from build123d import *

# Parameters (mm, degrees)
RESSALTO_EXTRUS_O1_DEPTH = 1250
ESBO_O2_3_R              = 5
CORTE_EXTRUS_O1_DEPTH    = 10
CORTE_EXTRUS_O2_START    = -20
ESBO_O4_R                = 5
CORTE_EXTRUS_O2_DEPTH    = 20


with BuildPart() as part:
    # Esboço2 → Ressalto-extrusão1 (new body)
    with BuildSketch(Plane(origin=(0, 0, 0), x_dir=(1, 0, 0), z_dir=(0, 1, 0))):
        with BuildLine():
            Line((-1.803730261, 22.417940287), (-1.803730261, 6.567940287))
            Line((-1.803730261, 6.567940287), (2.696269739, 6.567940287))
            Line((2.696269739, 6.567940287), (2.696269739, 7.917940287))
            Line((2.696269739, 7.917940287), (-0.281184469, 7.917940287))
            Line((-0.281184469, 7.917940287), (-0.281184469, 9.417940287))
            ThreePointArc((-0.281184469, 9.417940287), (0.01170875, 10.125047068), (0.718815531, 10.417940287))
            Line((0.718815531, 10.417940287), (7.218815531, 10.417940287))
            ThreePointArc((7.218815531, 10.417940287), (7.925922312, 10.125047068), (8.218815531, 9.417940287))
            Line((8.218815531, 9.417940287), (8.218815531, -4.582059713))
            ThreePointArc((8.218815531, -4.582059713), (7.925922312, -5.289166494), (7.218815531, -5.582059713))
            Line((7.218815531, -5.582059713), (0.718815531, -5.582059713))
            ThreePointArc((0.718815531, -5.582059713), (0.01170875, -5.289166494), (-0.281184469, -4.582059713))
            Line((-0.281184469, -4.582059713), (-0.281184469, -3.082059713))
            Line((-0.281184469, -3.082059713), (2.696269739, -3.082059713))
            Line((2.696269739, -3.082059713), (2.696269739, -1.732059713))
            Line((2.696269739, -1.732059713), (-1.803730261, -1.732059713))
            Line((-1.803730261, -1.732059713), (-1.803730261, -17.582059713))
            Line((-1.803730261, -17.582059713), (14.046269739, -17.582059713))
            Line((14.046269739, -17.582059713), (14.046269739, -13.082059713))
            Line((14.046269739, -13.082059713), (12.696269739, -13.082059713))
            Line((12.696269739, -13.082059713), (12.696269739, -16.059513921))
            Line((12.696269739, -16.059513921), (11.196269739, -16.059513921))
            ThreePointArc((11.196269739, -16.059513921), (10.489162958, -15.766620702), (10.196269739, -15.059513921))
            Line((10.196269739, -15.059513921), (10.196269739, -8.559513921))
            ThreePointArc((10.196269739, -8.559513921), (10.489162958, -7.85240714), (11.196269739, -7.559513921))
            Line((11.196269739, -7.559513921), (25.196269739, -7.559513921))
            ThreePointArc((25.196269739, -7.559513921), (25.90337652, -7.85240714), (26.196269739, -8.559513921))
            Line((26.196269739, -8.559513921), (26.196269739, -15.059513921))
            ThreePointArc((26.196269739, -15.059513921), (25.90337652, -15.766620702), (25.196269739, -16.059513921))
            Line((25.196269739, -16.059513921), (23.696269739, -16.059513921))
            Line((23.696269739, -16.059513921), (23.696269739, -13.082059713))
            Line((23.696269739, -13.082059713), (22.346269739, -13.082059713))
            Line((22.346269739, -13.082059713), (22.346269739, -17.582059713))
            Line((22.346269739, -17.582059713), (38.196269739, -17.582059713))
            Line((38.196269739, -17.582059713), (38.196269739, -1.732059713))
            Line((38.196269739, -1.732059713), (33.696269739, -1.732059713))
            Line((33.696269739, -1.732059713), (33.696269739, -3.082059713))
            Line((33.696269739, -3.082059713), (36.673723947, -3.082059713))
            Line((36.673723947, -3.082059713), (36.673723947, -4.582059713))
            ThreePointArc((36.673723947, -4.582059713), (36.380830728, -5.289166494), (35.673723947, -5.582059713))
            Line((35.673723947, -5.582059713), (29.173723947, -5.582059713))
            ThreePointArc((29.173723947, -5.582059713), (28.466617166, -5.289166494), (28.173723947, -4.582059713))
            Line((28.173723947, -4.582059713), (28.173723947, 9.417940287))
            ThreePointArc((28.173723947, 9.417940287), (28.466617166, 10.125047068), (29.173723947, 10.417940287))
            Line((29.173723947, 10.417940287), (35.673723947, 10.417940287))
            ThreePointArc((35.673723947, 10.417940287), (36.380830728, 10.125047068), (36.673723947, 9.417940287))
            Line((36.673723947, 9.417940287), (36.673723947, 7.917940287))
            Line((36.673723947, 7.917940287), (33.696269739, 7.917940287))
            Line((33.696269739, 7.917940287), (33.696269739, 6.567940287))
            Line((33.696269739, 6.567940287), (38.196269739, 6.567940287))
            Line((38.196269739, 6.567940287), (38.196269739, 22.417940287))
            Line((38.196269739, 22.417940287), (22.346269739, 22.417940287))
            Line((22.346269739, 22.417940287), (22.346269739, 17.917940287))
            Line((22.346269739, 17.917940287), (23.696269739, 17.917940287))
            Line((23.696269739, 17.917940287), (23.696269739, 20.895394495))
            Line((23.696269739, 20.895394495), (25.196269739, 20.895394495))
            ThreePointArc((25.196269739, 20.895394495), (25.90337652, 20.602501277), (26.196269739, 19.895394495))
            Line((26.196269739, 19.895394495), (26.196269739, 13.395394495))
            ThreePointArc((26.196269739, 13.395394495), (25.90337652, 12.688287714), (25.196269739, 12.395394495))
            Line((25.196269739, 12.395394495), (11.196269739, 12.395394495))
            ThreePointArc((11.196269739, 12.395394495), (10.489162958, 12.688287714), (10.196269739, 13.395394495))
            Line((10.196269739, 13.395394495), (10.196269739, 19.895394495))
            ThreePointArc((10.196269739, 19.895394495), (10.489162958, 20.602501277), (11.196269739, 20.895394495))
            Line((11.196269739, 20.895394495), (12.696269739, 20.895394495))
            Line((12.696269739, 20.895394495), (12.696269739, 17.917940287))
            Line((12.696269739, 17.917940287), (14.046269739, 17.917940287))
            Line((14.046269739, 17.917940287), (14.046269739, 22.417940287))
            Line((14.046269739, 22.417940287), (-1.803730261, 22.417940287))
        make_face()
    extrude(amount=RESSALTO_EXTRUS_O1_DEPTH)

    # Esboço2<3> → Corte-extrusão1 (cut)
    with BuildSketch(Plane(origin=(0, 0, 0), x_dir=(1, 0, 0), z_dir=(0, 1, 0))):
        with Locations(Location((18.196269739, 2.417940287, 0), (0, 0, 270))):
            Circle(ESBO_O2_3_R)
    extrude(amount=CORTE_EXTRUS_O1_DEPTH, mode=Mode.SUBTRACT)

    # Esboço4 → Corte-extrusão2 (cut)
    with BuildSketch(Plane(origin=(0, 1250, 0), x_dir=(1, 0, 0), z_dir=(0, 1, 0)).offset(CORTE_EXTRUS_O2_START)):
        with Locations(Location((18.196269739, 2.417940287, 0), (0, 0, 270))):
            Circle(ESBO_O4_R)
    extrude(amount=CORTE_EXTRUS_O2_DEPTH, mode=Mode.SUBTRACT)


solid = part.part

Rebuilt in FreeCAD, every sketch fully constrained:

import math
import FreeCAD as App
import Part
import Sketcher

V = App.Vector

doc = App.newDocument("Part")
body = doc.addObject("PartDesign::Body", "Body")

sketch1 = body.newObject("Sketcher::SketchObject", "Sketch")
sketch1.AttachmentSupport = (doc.getObject("XZ_Plane"), [""])
sketch1.MapMode = "FlatFace"
sketch1.addGeometry(Part.LineSegment(V(-1.80373, -22.41794, 0), V(-1.80373, -6.56794, 0)), False)
sketch1.addGeometry(Part.LineSegment(V(-1.80373, -6.56794, 0), V(2.69627, -6.56794, 0)), False)
sketch1.addGeometry(Part.LineSegment(V(2.69627, -6.56794, 0), V(2.69627, -7.91794, 0)), False)
sketch1.addGeometry(Part.LineSegment(V(2.69627, -7.91794, 0), V(-0.281184, -7.91794, 0)), False)
sketch1.addGeometry(Part.LineSegment(V(-0.281184, -7.91794, 0), V(-0.281184, -9.41794, 0)), False)
sketch1.addGeometry(Part.ArcOfCircle(Part.Circle(V(0.718816, -9.41794, 0), V(0, 0, 1), 1), math.radians(-180), math.radians(-90)), False)
sketch1.addGeometry(Part.LineSegment(V(0.718816, -10.41794, 0), V(7.218816, -10.41794, 0)), False)
sketch1.addGeometry(Part.ArcOfCircle(Part.Circle(V(7.218816, -9.41794, 0), V(0, 0, 1), 1), math.radians(-90), math.radians(0)), False)
sketch1.addGeometry(Part.LineSegment(V(8.218816, -9.41794, 0), V(8.218816, 4.58206, 0)), False)
sketch1.addGeometry(Part.ArcOfCircle(Part.Circle(V(7.218816, 4.58206, 0), V(0, 0, 1), 1), math.radians(0), math.radians(90)), False)
sketch1.addGeometry(Part.LineSegment(V(7.218816, 5.58206, 0), V(0.718816, 5.58206, 0)), False)
sketch1.addGeometry(Part.ArcOfCircle(Part.Circle(V(0.718816, 4.58206, 0), V(0, 0, 1), 1), math.radians(90), math.radians(180)), False)
sketch1.addGeometry(Part.LineSegment(V(-0.281184, 4.58206, 0), V(-0.281184, 3.08206, 0)), False)
sketch1.addGeometry(Part.LineSegment(V(-0.281184, 3.08206, 0), V(2.69627, 3.08206, 0)), False)
sketch1.addGeometry(Part.LineSegment(V(2.69627, 3.08206, 0), V(2.69627, 1.73206, 0)), False)
sketch1.addGeometry(Part.LineSegment(V(2.69627, 1.73206, 0), V(-1.80373, 1.73206, 0)), False)
sketch1.addGeometry(Part.LineSegment(V(-1.80373, 1.73206, 0), V(-1.80373, 17.58206, 0)), False)
sketch1.addGeometry(Part.LineSegment(V(-1.80373, 17.58206, 0), V(14.04627, 17.58206, 0)), False)
sketch1.addGeometry(Part.LineSegment(V(14.04627, 17.58206, 0), V(14.04627, 13.08206, 0)), False)
sketch1.addGeometry(Part.LineSegment(V(14.04627, 13.08206, 0), V(12.69627, 13.08206, 0)), False)
sketch1.addGeometry(Part.LineSegment(V(12.69627, 13.08206, 0), V(12.69627, 16.059514, 0)), False)
sketch1.addGeometry(Part.LineSegment(V(12.69627, 16.059514, 0), V(11.19627, 16.059514, 0)), False)
sketch1.addGeometry(Part.ArcOfCircle(Part.Circle(V(11.19627, 15.059514, 0), V(0, 0, 1), 1), math.radians(90), math.radians(180)), False)
sketch1.addGeometry(Part.LineSegment(V(10.19627, 15.059514, 0), V(10.19627, 8.559514, 0)), False)
sketch1.addGeometry(Part.ArcOfCircle(Part.Circle(V(11.19627, 8.559514, 0), V(0, 0, 1), 1), math.radians(-180), math.radians(-90)), False)
sketch1.addGeometry(Part.LineSegment(V(11.19627, 7.559514, 0), V(25.19627, 7.559514, 0)), False)
sketch1.addGeometry(Part.ArcOfCircle(Part.Circle(V(25.19627, 8.559514, 0), V(0, 0, 1), 1), math.radians(-90), math.radians(0)), False)
sketch1.addGeometry(Part.LineSegment(V(26.19627, 8.559514, 0), V(26.19627, 15.059514, 0)), False)
sketch1.addGeometry(Part.ArcOfCircle(Part.Circle(V(25.19627, 15.059514, 0), V(0, 0, 1), 1), math.radians(0), math.radians(90)), False)
sketch1.addGeometry(Part.LineSegment(V(25.19627, 16.059514, 0), V(23.69627, 16.059514, 0)), False)
sketch1.addGeometry(Part.LineSegment(V(23.69627, 16.059514, 0), V(23.69627, 13.08206, 0)), False)
sketch1.addGeometry(Part.LineSegment(V(23.69627, 13.08206, 0), V(22.34627, 13.08206, 0)), False)
sketch1.addGeometry(Part.LineSegment(V(22.34627, 13.08206, 0), V(22.34627, 17.58206, 0)), False)
sketch1.addGeometry(Part.LineSegment(V(22.34627, 17.58206, 0), V(38.19627, 17.58206, 0)), False)
sketch1.addGeometry(Part.LineSegment(V(38.19627, 17.58206, 0), V(38.19627, 1.73206, 0)), False)
sketch1.addGeometry(Part.LineSegment(V(38.19627, 1.73206, 0), V(33.69627, 1.73206, 0)), False)
sketch1.addGeometry(Part.LineSegment(V(33.69627, 1.73206, 0), V(33.69627, 3.08206, 0)), False)
sketch1.addGeometry(Part.LineSegment(V(33.69627, 3.08206, 0), V(36.673724, 3.08206, 0)), False)
sketch1.addGeometry(Part.LineSegment(V(36.673724, 3.08206, 0), V(36.673724, 4.58206, 0)), False)
sketch1.addGeometry(Part.ArcOfCircle(Part.Circle(V(35.673724, 4.58206, 0), V(0, 0, 1), 1), math.radians(0), math.radians(90)), False)
sketch1.addGeometry(Part.LineSegment(V(35.673724, 5.58206, 0), V(29.173724, 5.58206, 0)), False)
sketch1.addGeometry(Part.ArcOfCircle(Part.Circle(V(29.173724, 4.58206, 0), V(0, 0, 1), 1), math.radians(90), math.radians(180)), False)
sketch1.addGeometry(Part.LineSegment(V(28.173724, 4.58206, 0), V(28.173724, -9.41794, 0)), False)
sketch1.addGeometry(Part.ArcOfCircle(Part.Circle(V(29.173724, -9.41794, 0), V(0, 0, 1), 1), math.radians(-180), math.radians(-90)), False)
sketch1.addGeometry(Part.LineSegment(V(29.173724, -10.41794, 0), V(35.673724, -10.41794, 0)), False)
sketch1.addGeometry(Part.ArcOfCircle(Part.Circle(V(35.673724, -9.41794, 0), V(0, 0, 1), 1), math.radians(-90), math.radians(0)), False)
sketch1.addGeometry(Part.LineSegment(V(36.673724, -9.41794, 0), V(36.673724, -7.91794, 0)), False)
sketch1.addGeometry(Part.LineSegment(V(36.673724, -7.91794, 0), V(33.69627, -7.91794, 0)), False)
sketch1.addGeometry(Part.LineSegment(V(33.69627, -7.91794, 0), V(33.69627, -6.56794, 0)), False)
sketch1.addGeometry(Part.LineSegment(V(33.69627, -6.56794, 0), V(38.19627, -6.56794, 0)), False)
sketch1.addGeometry(Part.LineSegment(V(38.19627, -6.56794, 0), V(38.19627, -22.41794, 0)), False)
sketch1.addGeometry(Part.LineSegment(V(38.19627, -22.41794, 0), V(22.34627, -22.41794, 0)), False)
sketch1.addGeometry(Part.LineSegment(V(22.34627, -22.41794, 0), V(22.34627, -17.91794, 0)), False)
sketch1.addGeometry(Part.LineSegment(V(22.34627, -17.91794, 0), V(23.69627, -17.91794, 0)), False)
sketch1.addGeometry(Part.LineSegment(V(23.69627, -17.91794, 0), V(23.69627, -20.895394, 0)), False)
sketch1.addGeometry(Part.LineSegment(V(23.69627, -20.895394, 0), V(25.19627, -20.895394, 0)), False)
sketch1.addGeometry(Part.ArcOfCircle(Part.Circle(V(25.19627, -19.895394, 0), V(0, 0, 1), 1), math.radians(-90), math.radians(0)), False)
sketch1.addGeometry(Part.LineSegment(V(26.19627, -19.895394, 0), V(26.19627, -13.395394, 0)), False)
sketch1.addGeometry(Part.ArcOfCircle(Part.Circle(V(25.19627, -13.395394, 0), V(0, 0, 1), 1), math.radians(0), math.radians(90)), False)
sketch1.addGeometry(Part.LineSegment(V(25.19627, -12.395394, 0), V(11.19627, -12.395394, 0)), False)
sketch1.addGeometry(Part.ArcOfCircle(Part.Circle(V(11.19627, -13.395394, 0), V(0, 0, 1), 1), math.radians(90), math.radians(180)), False)
sketch1.addGeometry(Part.LineSegment(V(10.19627, -13.395394, 0), V(10.19627, -19.895394, 0)), False)
sketch1.addGeometry(Part.ArcOfCircle(Part.Circle(V(11.19627, -19.895394, 0), V(0, 0, 1), 1), math.radians(180), math.radians(270)), False)
sketch1.addGeometry(Part.LineSegment(V(11.19627, -20.895394, 0), V(12.69627, -20.895394, 0)), False)
sketch1.addGeometry(Part.LineSegment(V(12.69627, -20.895394, 0), V(12.69627, -17.91794, 0)), False)
sketch1.addGeometry(Part.LineSegment(V(12.69627, -17.91794, 0), V(14.04627, -17.91794, 0)), False)
sketch1.addGeometry(Part.LineSegment(V(14.04627, -17.91794, 0), V(14.04627, -22.41794, 0)), False)
sketch1.addGeometry(Part.LineSegment(V(14.04627, -22.41794, 0), V(-1.80373, -22.41794, 0)), False)
sketch1.addConstraint(Sketcher.Constraint("Coincident", 0, 2, 1, 1))
sketch1.addConstraint(Sketcher.Constraint("Coincident", 1, 2, 2, 1))
sketch1.addConstraint(Sketcher.Constraint("Coincident", 2, 2, 3, 1))
sketch1.addConstraint(Sketcher.Constraint("Coincident", 3, 2, 4, 1))
sketch1.addConstraint(Sketcher.Constraint("Tangent", 4, 2, 5, 1))
sketch1.addConstraint(Sketcher.Constraint("Tangent", 5, 2, 6, 1))
sketch1.addConstraint(Sketcher.Constraint("Tangent", 6, 2, 7, 1))
sketch1.addConstraint(Sketcher.Constraint("Tangent", 7, 2, 8, 1))
sketch1.addConstraint(Sketcher.Constraint("Tangent", 8, 2, 9, 1))
sketch1.addConstraint(Sketcher.Constraint("Tangent", 9, 2, 10, 1))
sketch1.addConstraint(Sketcher.Constraint("Tangent", 10, 2, 11, 1))
sketch1.addConstraint(Sketcher.Constraint("Tangent", 11, 2, 12, 1))
sketch1.addConstraint(Sketcher.Constraint("Coincident", 12, 2, 13, 1))
sketch1.addConstraint(Sketcher.Constraint("Coincident", 13, 2, 14, 1))
sketch1.addConstraint(Sketcher.Constraint("Coincident", 14, 2, 15, 1))
sketch1.addConstraint(Sketcher.Constraint("Coincident", 15, 2, 16, 1))
sketch1.addConstraint(Sketcher.Constraint("Coincident", 16, 2, 17, 1))
sketch1.addConstraint(Sketcher.Constraint("Coincident", 17, 2, 18, 1))
sketch1.addConstraint(Sketcher.Constraint("Coincident", 18, 2, 19, 1))
sketch1.addConstraint(Sketcher.Constraint("Coincident", 19, 2, 20, 1))
sketch1.addConstraint(Sketcher.Constraint("Coincident", 20, 2, 21, 1))
sketch1.addConstraint(Sketcher.Constraint("Tangent", 21, 2, 22, 1))
sketch1.addConstraint(Sketcher.Constraint("Tangent", 22, 2, 23, 1))
sketch1.addConstraint(Sketcher.Constraint("Tangent", 23, 2, 24, 1))
sketch1.addConstraint(Sketcher.Constraint("Tangent", 24, 2, 25, 1))
sketch1.addConstraint(Sketcher.Constraint("Tangent", 25, 2, 26, 1))
sketch1.addConstraint(Sketcher.Constraint("Tangent", 26, 2, 27, 1))
sketch1.addConstraint(Sketcher.Constraint("Tangent", 27, 2, 28, 1))
sketch1.addConstraint(Sketcher.Constraint("Tangent", 28, 2, 29, 1))
sketch1.addConstraint(Sketcher.Constraint("Coincident", 29, 2, 30, 1))
sketch1.addConstraint(Sketcher.Constraint("Coincident", 30, 2, 31, 1))
sketch1.addConstraint(Sketcher.Constraint("Coincident", 31, 2, 32, 1))
sketch1.addConstraint(Sketcher.Constraint("Coincident", 32, 2, 33, 1))
sketch1.addConstraint(Sketcher.Constraint("Coincident", 33, 2, 34, 1))
sketch1.addConstraint(Sketcher.Constraint("Coincident", 34, 2, 35, 1))
sketch1.addConstraint(Sketcher.Constraint("Coincident", 35, 2, 36, 1))
sketch1.addConstraint(Sketcher.Constraint("Coincident", 36, 2, 37, 1))
sketch1.addConstraint(Sketcher.Constraint("Coincident", 37, 2, 38, 1))
sketch1.addConstraint(Sketcher.Constraint("Tangent", 38, 2, 39, 1))
sketch1.addConstraint(Sketcher.Constraint("Tangent", 39, 2, 40, 1))
sketch1.addConstraint(Sketcher.Constraint("Tangent", 40, 2, 41, 1))
sketch1.addConstraint(Sketcher.Constraint("Tangent", 41, 2, 42, 1))
sketch1.addConstraint(Sketcher.Constraint("Tangent", 42, 2, 43, 1))
sketch1.addConstraint(Sketcher.Constraint("Tangent", 43, 2, 44, 1))
sketch1.addConstraint(Sketcher.Constraint("Tangent", 44, 2, 45, 1))
sketch1.addConstraint(Sketcher.Constraint("Tangent", 45, 2, 46, 1))
sketch1.addConstraint(Sketcher.Constraint("Coincident", 46, 2, 47, 1))
sketch1.addConstraint(Sketcher.Constraint("Coincident", 47, 2, 48, 1))
sketch1.addConstraint(Sketcher.Constraint("Coincident", 48, 2, 49, 1))
sketch1.addConstraint(Sketcher.Constraint("Coincident", 49, 2, 50, 1))
sketch1.addConstraint(Sketcher.Constraint("Coincident", 50, 2, 51, 1))
sketch1.addConstraint(Sketcher.Constraint("Coincident", 51, 2, 52, 1))
sketch1.addConstraint(Sketcher.Constraint("Coincident", 52, 2, 53, 1))
sketch1.addConstraint(Sketcher.Constraint("Coincident", 53, 2, 54, 1))
sketch1.addConstraint(Sketcher.Constraint("Coincident", 54, 2, 55, 1))
sketch1.addConstraint(Sketcher.Constraint("Tangent", 55, 2, 56, 1))
sketch1.addConstraint(Sketcher.Constraint("Tangent", 56, 2, 57, 1))
sketch1.addConstraint(Sketcher.Constraint("Tangent", 57, 2, 58, 1))
sketch1.addConstraint(Sketcher.Constraint("Tangent", 58, 2, 59, 1))
sketch1.addConstraint(Sketcher.Constraint("Tangent", 59, 2, 60, 1))
sketch1.addConstraint(Sketcher.Constraint("Tangent", 60, 2, 61, 1))
sketch1.addConstraint(Sketcher.Constraint("Tangent", 61, 2, 62, 1))
sketch1.addConstraint(Sketcher.Constraint("Tangent", 62, 2, 63, 1))
sketch1.addConstraint(Sketcher.Constraint("Coincident", 63, 2, 64, 1))
sketch1.addConstraint(Sketcher.Constraint("Coincident", 64, 2, 65, 1))
sketch1.addConstraint(Sketcher.Constraint("Coincident", 65, 2, 66, 1))
sketch1.addConstraint(Sketcher.Constraint("Coincident", 66, 2, 67, 1))
sketch1.addConstraint(Sketcher.Constraint("Coincident", 67, 2, 0, 1))
sketch1.addConstraint(Sketcher.Constraint("Vertical", 0))
sketch1.addConstraint(Sketcher.Constraint("Horizontal", 1))
sketch1.addConstraint(Sketcher.Constraint("Vertical", 2))
sketch1.addConstraint(Sketcher.Constraint("Horizontal", 3))
sketch1.addConstraint(Sketcher.Constraint("Vertical", 4))
sketch1.addConstraint(Sketcher.Constraint("Horizontal", 6))
sketch1.addConstraint(Sketcher.Constraint("Vertical", 8))
sketch1.addConstraint(Sketcher.Constraint("Horizontal", 10))
sketch1.addConstraint(Sketcher.Constraint("Vertical", 12))
sketch1.addConstraint(Sketcher.Constraint("Horizontal", 13))
sketch1.addConstraint(Sketcher.Constraint("Vertical", 14))
sketch1.addConstraint(Sketcher.Constraint("Horizontal", 15))
sketch1.addConstraint(Sketcher.Constraint("Vertical", 16))
sketch1.addConstraint(Sketcher.Constraint("Horizontal", 17))
sketch1.addConstraint(Sketcher.Constraint("Vertical", 18))
sketch1.addConstraint(Sketcher.Constraint("Horizontal", 19))
sketch1.addConstraint(Sketcher.Constraint("Vertical", 20))
sketch1.addConstraint(Sketcher.Constraint("Horizontal", 21))
sketch1.addConstraint(Sketcher.Constraint("Vertical", 23))
sketch1.addConstraint(Sketcher.Constraint("Horizontal", 25))
sketch1.addConstraint(Sketcher.Constraint("Vertical", 27))
sketch1.addConstraint(Sketcher.Constraint("Horizontal", 29))
sketch1.addConstraint(Sketcher.Constraint("Vertical", 30))
sketch1.addConstraint(Sketcher.Constraint("Horizontal", 31))
sketch1.addConstraint(Sketcher.Constraint("Vertical", 32))
sketch1.addConstraint(Sketcher.Constraint("Horizontal", 33))
sketch1.addConstraint(Sketcher.Constraint("Vertical", 34))
sketch1.addConstraint(Sketcher.Constraint("Horizontal", 35))
sketch1.addConstraint(Sketcher.Constraint("Vertical", 36))
sketch1.addConstraint(Sketcher.Constraint("Horizontal", 37))
sketch1.addConstraint(Sketcher.Constraint("Vertical", 38))
sketch1.addConstraint(Sketcher.Constraint("Horizontal", 40))
sketch1.addConstraint(Sketcher.Constraint("Vertical", 42))
sketch1.addConstraint(Sketcher.Constraint("Horizontal", 44))
sketch1.addConstraint(Sketcher.Constraint("Vertical", 46))
sketch1.addConstraint(Sketcher.Constraint("Horizontal", 47))
sketch1.addConstraint(Sketcher.Constraint("Vertical", 48))
sketch1.addConstraint(Sketcher.Constraint("Horizontal", 49))
sketch1.addConstraint(Sketcher.Constraint("Vertical", 50))
sketch1.addConstraint(Sketcher.Constraint("Horizontal", 51))
sketch1.addConstraint(Sketcher.Constraint("Vertical", 52))
sketch1.addConstraint(Sketcher.Constraint("Horizontal", 53))
sketch1.addConstraint(Sketcher.Constraint("Vertical", 54))
sketch1.addConstraint(Sketcher.Constraint("Horizontal", 55))
sketch1.addConstraint(Sketcher.Constraint("Vertical", 57))
sketch1.addConstraint(Sketcher.Constraint("Horizontal", 59))
sketch1.addConstraint(Sketcher.Constraint("Vertical", 61))
sketch1.addConstraint(Sketcher.Constraint("Horizontal", 63))
sketch1.addConstraint(Sketcher.Constraint("Vertical", 64))
sketch1.addConstraint(Sketcher.Constraint("Horizontal", 65))
sketch1.addConstraint(Sketcher.Constraint("Vertical", 66))
sketch1.addConstraint(Sketcher.Constraint("Horizontal", 67))
sketch1.addConstraint(Sketcher.Constraint("Equal", 5, 7))
sketch1.addConstraint(Sketcher.Constraint("Equal", 7, 9))
sketch1.addConstraint(Sketcher.Constraint("Equal", 9, 11))
sketch1.addConstraint(Sketcher.Constraint("Equal", 11, 22))
sketch1.addConstraint(Sketcher.Constraint("Equal", 22, 24))
sketch1.addConstraint(Sketcher.Constraint("Equal", 24, 26))
sketch1.addConstraint(Sketcher.Constraint("Equal", 26, 28))
sketch1.addConstraint(Sketcher.Constraint("Equal", 28, 39))
sketch1.addConstraint(Sketcher.Constraint("Equal", 39, 41))
sketch1.addConstraint(Sketcher.Constraint("Equal", 41, 43))
sketch1.addConstraint(Sketcher.Constraint("Equal", 43, 45))
sketch1.addConstraint(Sketcher.Constraint("Equal", 45, 56))
sketch1.addConstraint(Sketcher.Constraint("Equal", 56, 58))
sketch1.addConstraint(Sketcher.Constraint("Equal", 58, 60))
sketch1.addConstraint(Sketcher.Constraint("Equal", 60, 62))
sketch1.addConstraint(Sketcher.Constraint("Horizontal", 22, 3, 28, 3))
sketch1.addConstraint(Sketcher.Constraint("Horizontal", 11, 3, 39, 3))
sketch1.addConstraint(Sketcher.Constraint("Horizontal", 7, 3, 43, 3))
sketch1.addConstraint(Sketcher.Constraint("Horizontal", 56, 3, 62, 3))
sketch1.addConstraint(Sketcher.Constraint("Horizontal", 19, 2, 30, 2))
sketch1.addConstraint(Sketcher.Constraint("Horizontal", 17, 2, 32, 2))
sketch1.addConstraint(Sketcher.Constraint("Horizontal", 15, 2, 34, 2))
sketch1.addConstraint(Sketcher.Constraint("Horizontal", 13, 2, 36, 2))
sketch1.addConstraint(Sketcher.Constraint("Horizontal", 3, 2, 46, 2))
sketch1.addConstraint(Sketcher.Constraint("Horizontal", 1, 2, 48, 2))
sketch1.addConstraint(Sketcher.Constraint("Horizontal", 53, 2, 64, 2))
sketch1.addConstraint(Sketcher.Constraint("Horizontal", 51, 2, 66, 2))
sketch1.addConstraint(Sketcher.Constraint("Vertical", 5, 3, 11, 3))
sketch1.addConstraint(Sketcher.Constraint("Vertical", 39, 3, 45, 3))
sketch1.addConstraint(Sketcher.Constraint("Vertical", 28, 3, 56, 3))
sketch1.addConstraint(Sketcher.Constraint("Vertical", 24, 3, 60, 3))
sketch1.addConstraint(Sketcher.Constraint("Vertical", 2, 2, 13, 2))
sketch1.addConstraint(Sketcher.Constraint("Vertical", 0, 2, 15, 2))
sketch1.addConstraint(Sketcher.Constraint("Vertical", 36, 2, 47, 2))
sketch1.addConstraint(Sketcher.Constraint("Vertical", 34, 2, 49, 2))
sketch1.addConstraint(Sketcher.Constraint("Vertical", 32, 2, 51, 2))
sketch1.addConstraint(Sketcher.Constraint("Vertical", 30, 2, 53, 2))
sketch1.addConstraint(Sketcher.Constraint("Vertical", 20, 2, 63, 2))
sketch1.addConstraint(Sketcher.Constraint("Vertical", 18, 2, 65, 2))
sketch1.addConstraint(Sketcher.Constraint("Equal", 21, 29))
sketch1.addConstraint(Sketcher.Constraint("Equal", 19, 31))
sketch1.addConstraint(Sketcher.Constraint("Equal", 17, 33))
sketch1.addConstraint(Sketcher.Constraint("Equal", 15, 35))
sketch1.addConstraint(Sketcher.Constraint("Equal", 13, 37))
sketch1.addConstraint(Sketcher.Constraint("Equal", 10, 40))
sketch1.addConstraint(Sketcher.Constraint("Equal", 67, 0))
sketch1.addConstraint(Sketcher.Constraint("Equal", 65, 2))
sketch1.addConstraint(Sketcher.Constraint("Equal", 63, 4))
sketch1.addConstraint(Sketcher.Constraint("Equal", 59, 8))
sketch1.addConstraint(Sketcher.Constraint("Equal", 4, 12))
sketch1.addConstraint(Sketcher.Constraint("Equal", 2, 14))
sketch1.addConstraint(Sketcher.Constraint("Equal", 0, 16))
sketch1.addConstraint(Sketcher.Constraint("Equal", 49, 18))
sketch1.addConstraint(Sketcher.Constraint("Equal", 47, 20))
sketch1.addConstraint(Sketcher.Constraint("Equal", 44, 23))
sketch1.addConstraint(Sketcher.Constraint("Equal", 32, 52))
sketch1.addConstraint(Sketcher.Constraint("Equal", 30, 54))
sketch1.addConstraint(Sketcher.Constraint("Equal", 27, 57))
sketch1.addConstraint(Sketcher.Constraint("Radius", 5, 1.0))
sketch1.addConstraint(Sketcher.Constraint("DistanceX", 25, 1, 25, 2, 14.0))
sketch1.addConstraint(Sketcher.Constraint("DistanceX", 1, 1, 1, 2, 4.5))
sketch1.addConstraint(Sketcher.Constraint("DistanceX", 6, 1, 6, 2, 6.5))
sketch1.addConstraint(Sketcher.Constraint("DistanceX", 21, 2, 21, 1, 1.5))
sketch1.addConstraint(Sketcher.Constraint("DistanceX", 17, 1, 17, 2, 15.85))
sketch1.addConstraint(Sketcher.Constraint("DistanceX", 19, 2, 19, 1, 1.35))
sketch1.addConstraint(Sketcher.Constraint("DistanceX", 3, 2, 3, 1, 2.977454))
sketch1.addConstraint(Sketcher.Constraint("DistanceY", 5, 3, -1, 1, 9.41794))
sketch1.addConstraint(Sketcher.Constraint("DistanceX", -1, 1, 22, 3, 11.19627))
pad1 = body.newObject("PartDesign::Pad", "Pad")
pad1.Profile = sketch1
pad1.Length = 1250
pad1.Reversed = True

sketch2 = body.newObject("Sketcher::SketchObject", "Sketch001")
sketch2.AttachmentSupport = (doc.getObject("XZ_Plane"), [""])
sketch2.MapMode = "FlatFace"
sketch2.addGeometry(Part.Circle(V(18.19627, -2.41794, 0), V(0, 0, 1), 5), False)
sketch2.addConstraint(Sketcher.Constraint("Diameter", 0, 10.0))
sketch2.addConstraint(Sketcher.Constraint("DistanceX", -1, 1, 0, 3, 18.19627))
sketch2.addConstraint(Sketcher.Constraint("DistanceY", 0, 3, -1, 1, 2.41794))
pocket1 = body.newObject("PartDesign::Pocket", "Pocket")
pocket1.Profile = sketch2
pocket1.Length = 10

sketch3 = body.newObject("Sketcher::SketchObject", "Sketch002")
sketch3.AttachmentSupport = (doc.getObject("XZ_Plane"), [""])
sketch3.MapMode = "FlatFace"
sketch3.AttachmentOffset = App.Placement(V(0, 0, -1230), App.Rotation())
sketch3.addGeometry(Part.Circle(V(18.19627, -2.41794, 0), V(0, 0, 1), 5), False)
sketch3.addConstraint(Sketcher.Constraint("Diameter", 0, 10.0))
sketch3.addConstraint(Sketcher.Constraint("DistanceX", -1, 1, 0, 3, 18.19627))
sketch3.addConstraint(Sketcher.Constraint("DistanceY", 0, 3, -1, 1, 2.41794))
pocket2 = body.newObject("PartDesign::Pocket", "Pocket001")
pocket2.Profile = sketch3
pocket2.Length = 20

doc.recompute()
